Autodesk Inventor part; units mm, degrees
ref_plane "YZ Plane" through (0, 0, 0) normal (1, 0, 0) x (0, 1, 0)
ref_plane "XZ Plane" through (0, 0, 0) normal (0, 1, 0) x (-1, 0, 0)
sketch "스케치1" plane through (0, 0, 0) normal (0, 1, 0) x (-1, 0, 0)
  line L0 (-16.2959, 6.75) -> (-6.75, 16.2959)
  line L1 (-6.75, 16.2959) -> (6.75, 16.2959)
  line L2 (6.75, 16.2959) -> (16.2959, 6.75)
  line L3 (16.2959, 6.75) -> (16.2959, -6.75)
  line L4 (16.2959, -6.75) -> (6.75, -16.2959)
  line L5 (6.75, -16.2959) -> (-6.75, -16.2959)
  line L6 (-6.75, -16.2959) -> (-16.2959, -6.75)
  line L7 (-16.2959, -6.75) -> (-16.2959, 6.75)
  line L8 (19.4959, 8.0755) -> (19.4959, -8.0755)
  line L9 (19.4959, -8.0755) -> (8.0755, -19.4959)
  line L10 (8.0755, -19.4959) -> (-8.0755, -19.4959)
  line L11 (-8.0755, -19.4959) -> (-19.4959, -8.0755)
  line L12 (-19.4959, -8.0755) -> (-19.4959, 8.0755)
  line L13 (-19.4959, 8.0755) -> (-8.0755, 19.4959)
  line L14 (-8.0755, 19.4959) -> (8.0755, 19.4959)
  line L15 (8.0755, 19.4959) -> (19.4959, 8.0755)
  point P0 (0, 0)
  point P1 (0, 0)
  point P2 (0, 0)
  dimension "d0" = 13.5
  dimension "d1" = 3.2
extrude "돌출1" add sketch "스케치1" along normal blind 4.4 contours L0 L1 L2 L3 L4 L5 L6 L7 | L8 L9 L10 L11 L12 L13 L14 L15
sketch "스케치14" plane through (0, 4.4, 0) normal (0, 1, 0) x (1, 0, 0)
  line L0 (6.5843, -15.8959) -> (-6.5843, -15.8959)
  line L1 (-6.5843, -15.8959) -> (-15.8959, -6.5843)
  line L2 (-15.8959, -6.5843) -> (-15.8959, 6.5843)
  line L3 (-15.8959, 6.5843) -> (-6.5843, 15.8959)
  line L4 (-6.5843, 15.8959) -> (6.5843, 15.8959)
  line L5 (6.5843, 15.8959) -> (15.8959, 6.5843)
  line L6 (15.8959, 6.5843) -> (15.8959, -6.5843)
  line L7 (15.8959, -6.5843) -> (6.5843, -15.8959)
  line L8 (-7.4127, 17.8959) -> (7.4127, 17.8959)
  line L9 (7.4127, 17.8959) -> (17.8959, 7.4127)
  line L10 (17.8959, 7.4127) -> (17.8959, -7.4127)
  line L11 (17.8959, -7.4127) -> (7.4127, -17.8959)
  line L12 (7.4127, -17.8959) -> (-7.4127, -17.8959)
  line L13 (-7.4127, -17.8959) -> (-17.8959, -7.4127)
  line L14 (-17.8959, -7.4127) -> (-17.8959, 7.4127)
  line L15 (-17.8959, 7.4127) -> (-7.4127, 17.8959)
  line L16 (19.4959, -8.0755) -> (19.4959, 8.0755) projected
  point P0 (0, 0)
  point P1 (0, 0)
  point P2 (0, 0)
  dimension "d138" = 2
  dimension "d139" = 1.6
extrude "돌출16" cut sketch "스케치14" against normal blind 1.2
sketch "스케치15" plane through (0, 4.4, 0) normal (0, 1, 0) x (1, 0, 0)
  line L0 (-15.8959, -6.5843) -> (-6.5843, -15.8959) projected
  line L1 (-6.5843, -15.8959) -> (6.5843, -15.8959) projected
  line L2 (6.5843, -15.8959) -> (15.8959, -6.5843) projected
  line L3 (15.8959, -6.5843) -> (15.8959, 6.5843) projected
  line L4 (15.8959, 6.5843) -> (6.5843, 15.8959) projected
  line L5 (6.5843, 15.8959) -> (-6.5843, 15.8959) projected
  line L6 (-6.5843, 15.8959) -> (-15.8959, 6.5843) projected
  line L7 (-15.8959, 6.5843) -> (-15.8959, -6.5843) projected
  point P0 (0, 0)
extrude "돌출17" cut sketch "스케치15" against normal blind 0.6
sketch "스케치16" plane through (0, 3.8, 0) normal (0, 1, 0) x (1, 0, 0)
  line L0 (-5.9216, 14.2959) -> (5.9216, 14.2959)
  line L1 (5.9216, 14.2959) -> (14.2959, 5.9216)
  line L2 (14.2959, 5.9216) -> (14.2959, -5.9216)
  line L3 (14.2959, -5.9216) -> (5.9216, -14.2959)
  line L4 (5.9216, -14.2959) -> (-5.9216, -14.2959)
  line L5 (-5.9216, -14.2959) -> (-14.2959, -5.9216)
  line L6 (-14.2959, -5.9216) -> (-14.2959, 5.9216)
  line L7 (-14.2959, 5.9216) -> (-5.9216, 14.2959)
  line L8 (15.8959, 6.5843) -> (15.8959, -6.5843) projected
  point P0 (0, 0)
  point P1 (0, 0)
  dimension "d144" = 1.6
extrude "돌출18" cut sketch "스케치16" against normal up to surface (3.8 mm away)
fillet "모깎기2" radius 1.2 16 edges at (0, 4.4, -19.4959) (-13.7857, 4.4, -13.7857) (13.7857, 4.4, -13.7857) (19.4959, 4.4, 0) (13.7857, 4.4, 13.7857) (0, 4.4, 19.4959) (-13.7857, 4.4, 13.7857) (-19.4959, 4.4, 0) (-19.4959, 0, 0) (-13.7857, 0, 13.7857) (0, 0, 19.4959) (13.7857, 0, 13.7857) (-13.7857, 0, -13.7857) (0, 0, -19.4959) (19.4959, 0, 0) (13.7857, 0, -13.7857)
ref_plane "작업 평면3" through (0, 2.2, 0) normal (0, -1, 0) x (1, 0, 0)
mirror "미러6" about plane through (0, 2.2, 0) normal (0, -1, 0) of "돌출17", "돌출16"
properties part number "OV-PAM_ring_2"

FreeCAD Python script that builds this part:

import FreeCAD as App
import Part
import Sketcher

V = App.Vector
Q = App.Units.Quantity


def edges_at(feature, points):
    """Names of the edges that pass closest to the given points."""
    edges = feature.Shape.Edges
    near = lambda p: min(range(len(edges)), key=lambda i: edges[i].distToShape(Part.Vertex(*p))[0])
    return sorted({f"Edge{near(p) + 1}" for p in points})

doc = App.newDocument("Part")
body = doc.addObject("PartDesign::Body", "Body")

sketch1 = body.newObject("Sketcher::SketchObject", "Sketch")
sketch1.AttachmentSupport = (doc.getObject("XZ_Plane"), [""])
sketch1.MapMode = "FlatFace"
sketch1.addGeometry([
    Part.LineSegment(V(-19, -8, 0), V(-19, 8, 0)),
    Part.LineSegment(V(-19, 8, 0), V(-8, 19, 0)),
    Part.LineSegment(V(-8, 19, 0), V(8, 19, 0)),
    Part.LineSegment(V(8, 19, 0), V(19, 8, 0)),
    Part.LineSegment(V(19, 8, 0), V(19, -8, 0)),
    Part.LineSegment(V(19, -8, 0), V(8, -19, 0)),
    Part.LineSegment(V(8, -19, 0), V(-8, -19, 0)),
    Part.LineSegment(V(-8, -19, 0), V(-19, -8, 0)),
], False)
sketch1.addConstraint([
    Sketcher.Constraint("Coincident", 0, 2, 1, 1),
    Sketcher.Constraint("Coincident", 1, 2, 2, 1),
    Sketcher.Constraint("Coincident", 2, 2, 3, 1),
    Sketcher.Constraint("Coincident", 3, 2, 4, 1),
    Sketcher.Constraint("Coincident", 4, 2, 5, 1),
    Sketcher.Constraint("Coincident", 5, 2, 6, 1),
    Sketcher.Constraint("Coincident", 6, 2, 7, 1),
    Sketcher.Constraint("Coincident", 7, 2, 0, 1),
    Sketcher.Constraint("Vertical", 0),
    Sketcher.Constraint("Horizontal", 2),
    Sketcher.Constraint("Vertical", 4),
    Sketcher.Constraint("Horizontal", 6),
    Sketcher.Constraint("Symmetric", 0, 2, 4, 2, -1, 1),
    Sketcher.Constraint("Symmetric", 1, 2, 5, 2, -1, 1),
    Sketcher.Constraint("Perpendicular", 1, 3),
    Sketcher.Constraint("Perpendicular", 5, 7),
    Sketcher.Constraint("Horizontal", 0, 2, 3, 2),
    Sketcher.Constraint("Horizontal", 4, 2, 7, 2),
    Sketcher.Constraint("Vertical", 2, 2, 5, 2),
    Sketcher.Constraint("Equal", 6, 0),
    Sketcher.Constraint("DistanceX", 2, 1, 2, 2, Q("16.151 mm")),
    Sketcher.Constraint("Distance", 1, Q("16.151 mm")),
])
pad1 = body.newObject("PartDesign::Pad", "Pad")
pad1.Profile = sketch1
pad1.Length = 4.4
pad1.Reversed = True

sketch2 = body.newObject("Sketcher::SketchObject", "Sketch001")
sketch2.AttachmentSupport = (doc.getObject("XZ_Plane"), [""])
sketch2.MapMode = "FlatFace"
sketch2.AttachmentOffset = App.Placement(V(0, 0, -4.4), App.Rotation())
sketch2.addGeometry([
    Part.LineSegment(V(7, -18, 0), V(-7, -18, 0)),
    Part.LineSegment(V(-7, -18, 0), V(-18, -7, 0)),
    Part.LineSegment(V(-18, -7, 0), V(-18, 7, 0)),
    Part.LineSegment(V(-18, 7, 0), V(-7, 18, 0)),
    Part.LineSegment(V(-7, 18, 0), V(7, 18, 0)),
    Part.LineSegment(V(7, 18, 0), V(18, 7, 0)),
    Part.LineSegment(V(18, 7, 0), V(18, -7, 0)),
    Part.LineSegment(V(18, -7, 0), V(7, -18, 0)),
    Part.LineSegment(V(16, 7, 0), V(7, 16, 0)),
    Part.LineSegment(V(7, 16, 0), V(-7, 16, 0)),
    Part.LineSegment(V(-7, 16, 0), V(-16, 7, 0)),
    Part.LineSegment(V(-16, 7, 0), V(-16, -7, 0)),
    Part.LineSegment(V(-16, -7, 0), V(-7, -16, 0)),
    Part.LineSegment(V(-7, -16, 0), V(7, -16, 0)),
    Part.LineSegment(V(7, -16, 0), V(16, -7, 0)),
    Part.LineSegment(V(16, -7, 0), V(16, 7, 0)),
], False)
sketch2.addConstraint([
    Sketcher.Constraint("Coincident", 0, 2, 1, 1),
    Sketcher.Constraint("Coincident", 1, 2, 2, 1),
    Sketcher.Constraint("Coincident", 2, 2, 3, 1),
    Sketcher.Constraint("Coincident", 3, 2, 4, 1),
    Sketcher.Constraint("Coincident", 4, 2, 5, 1),
    Sketcher.Constraint("Coincident", 5, 2, 6, 1),
    Sketcher.Constraint("Coincident", 6, 2, 7, 1),
    Sketcher.Constraint("Coincident", 7, 2, 0, 1),
    Sketcher.Constraint("Coincident", 8, 2, 9, 1),
    Sketcher.Constraint("Coincident", 9, 2, 10, 1),
    Sketcher.Constraint("Coincident", 10, 2, 11, 1),
    Sketcher.Constraint("Coincident", 11, 2, 12, 1),
    Sketcher.Constraint("Coincident", 12, 2, 13, 1),
    Sketcher.Constraint("Coincident", 13, 2, 14, 1),
    Sketcher.Constraint("Coincident", 14, 2, 15, 1),
    Sketcher.Constraint("Coincident", 15, 2, 8, 1),
    Sketcher.Constraint("Horizontal", 0),
    Sketcher.Constraint("Vertical", 2),
    Sketcher.Constraint("Horizontal", 4),
    Sketcher.Constraint("Vertical", 6),
    Sketcher.Constraint("Horizontal", 9),
    Sketcher.Constraint("Vertical", 11),
    Sketcher.Constraint("Horizontal", 13),
    Sketcher.Constraint("Vertical", 15),
    Sketcher.Constraint("Symmetric", 0, 2, 4, 2, -1, 1),
    Sketcher.Constraint("Symmetric", 1, 2, 5, 2, -1, 1),
    Sketcher.Constraint("Symmetric", 8, 2, 12, 2, -1, 1),
    Sketcher.Constraint("Symmetric", 10, 2, 14, 2, -1, 1),
    Sketcher.Constraint("Perpendicular", 1, 3),
    Sketcher.Constraint("Perpendicular", 5, 7),
    Sketcher.Constraint("Perpendicular", 7, 8),
    Sketcher.Constraint("Perpendicular", 8, 10),
    Sketcher.Constraint("Perpendicular", 10, 12),
    Sketcher.Constraint("Perpendicular", 12, 14),
    Sketcher.Constraint("Horizontal", 2, 2, 5, 2),
    Sketcher.Constraint("Horizontal", 1, 2, 6, 2),
    Sketcher.Constraint("Horizontal", 11, 2, 14, 2),
    Sketcher.Constraint("Vertical", 0, 2, 3, 2),
    Sketcher.Constraint("Equal", 4, 2),
    Sketcher.Constraint("Equal", 13, 11),
    Sketcher.Constraint("DistanceY", 8, 2, 4, 2, Q("2 mm")),
    Sketcher.Constraint("DistanceX", 0, 2, 0, 1, Q("14.8254 mm")),
    Sketcher.Constraint("DistanceX", 9, 2, 9, 1, Q("13.1686 mm")),
    Sketcher.Constraint("DistanceY", 0, 2, -1, 1, Q("17.896 mm")),
])
pocket1 = body.newObject("PartDesign::Pocket", "Pocket")
pocket1.Profile = sketch2
pocket1.Length = 1.2
pocket1.Reversed = True

sketch3 = body.newObject("Sketcher::SketchObject", "Sketch002")
sketch3.AttachmentSupport = (doc.getObject("XZ_Plane"), [""])
sketch3.MapMode = "FlatFace"
sketch3.AttachmentOffset = App.Placement(V(0, 0, -4.4), App.Rotation())
sketch3.addGeometry([
    Part.LineSegment(V(-16, -7, 0), V(-16, 7, 0)),
    Part.LineSegment(V(-16, 7, 0), V(-7, 16, 0)),
    Part.LineSegment(V(-7, 16, 0), V(7, 16, 0)),
    Part.LineSegment(V(7, 16, 0), V(16, 7, 0)),
    Part.LineSegment(V(16, 7, 0), V(16, -7, 0)),
    Part.LineSegment(V(16, -7, 0), V(7, -16, 0)),
    Part.LineSegment(V(7, -16, 0), V(-7, -16, 0)),
    Part.LineSegment(V(-7, -16, 0), V(-16, -7, 0)),
], False)
sketch3.addConstraint([
    Sketcher.Constraint("Coincident", 0, 2, 1, 1),
    Sketcher.Constraint("Coincident", 1, 2, 2, 1),
    Sketcher.Constraint("Coincident", 2, 2, 3, 1),
    Sketcher.Constraint("Coincident", 3, 2, 4, 1),
    Sketcher.Constraint("Coincident", 4, 2, 5, 1),
    Sketcher.Constraint("Coincident", 5, 2, 6, 1),
    Sketcher.Constraint("Coincident", 6, 2, 7, 1),
    Sketcher.Constraint("Coincident", 7, 2, 0, 1),
    Sketcher.Constraint("Vertical", 0),
    Sketcher.Constraint("Horizontal", 2),
    Sketcher.Constraint("Vertical", 4),
    Sketcher.Constraint("Horizontal", 6),
    Sketcher.Constraint("Symmetric", 0, 2, 4, 2, -1, 1),
    Sketcher.Constraint("Symmetric", 1, 2, 5, 2, -1, 1),
    Sketcher.Constraint("Perpendicular", 1, 3),
    Sketcher.Constraint("Perpendicular", 5, 7),
    Sketcher.Constraint("Horizontal", 0, 2, 3, 2),
    Sketcher.Constraint("Horizontal", 4, 2, 7, 2),
    Sketcher.Constraint("Vertical", 2, 2, 5, 2),
    Sketcher.Constraint("Equal", 6, 0),
    Sketcher.Constraint("DistanceX", 2, 1, 2, 2, Q("13.1686 mm")),
    Sketcher.Constraint("DistanceX", 0, 2, -1, 1, Q("15.896 mm")),
])
pocket2 = body.newObject("PartDesign::Pocket", "Pocket001")
pocket2.Profile = sketch3
pocket2.Length = 0.6
pocket2.Reversed = True

sketch4 = body.newObject("Sketcher::SketchObject", "Sketch003")
sketch4.AttachmentSupport = (doc.getObject("XZ_Plane"), [""])
sketch4.MapMode = "FlatFace"
sketch4.AttachmentOffset = App.Placement(V(0, 0, -3.8), App.Rotation())
sketch4.addGeometry([
    Part.LineSegment(V(6, -14, 0), V(-6, -14, 0)),
    Part.LineSegment(V(-6, -14, 0), V(-14, -6, 0)),
    Part.LineSegment(V(-14, -6, 0), V(-14, 6, 0)),
    Part.LineSegment(V(-14, 6, 0), V(-6, 14, 0)),
    Part.LineSegment(V(-6, 14, 0), V(6, 14, 0)),
    Part.LineSegment(V(6, 14, 0), V(14, 6, 0)),
    Part.LineSegment(V(14, 6, 0), V(14, -6, 0)),
    Part.LineSegment(V(14, -6, 0), V(6, -14, 0)),
], False)
sketch4.addConstraint([
    Sketcher.Constraint("Coincident", 0, 2, 1, 1),
    Sketcher.Constraint("Coincident", 1, 2, 2, 1),
    Sketcher.Constraint("Coincident", 2, 2, 3, 1),
    Sketcher.Constraint("Coincident", 3, 2, 4, 1),
    Sketcher.Constraint("Coincident", 4, 2, 5, 1),
    Sketcher.Constraint("Coincident", 5, 2, 6, 1),
    Sketcher.Constraint("Coincident", 6, 2, 7, 1),
    Sketcher.Constraint("Coincident", 7, 2, 0, 1),
    Sketcher.Constraint("Horizontal", 0),
    Sketcher.Constraint("Vertical", 2),
    Sketcher.Constraint("Horizontal", 4),
    Sketcher.Constraint("Vertical", 6),
    Sketcher.Constraint("Symmetric", 0, 2, 4, 2, -1, 1),
    Sketcher.Constraint("Symmetric", 1, 2, 5, 2, -1, 1),
    Sketcher.Constraint("Perpendicular", 1, 3),
    Sketcher.Constraint("Perpendicular", 5, 7),
    Sketcher.Constraint("Horizontal", 2, 2, 5, 2),
    Sketcher.Constraint("Horizontal", 1, 2, 6, 2),
    Sketcher.Constraint("Vertical", 0, 2, 3, 2),
    Sketcher.Constraint("Equal", 4, 2),
    Sketcher.Constraint("Distance", 1, Q("11.843 mm")),
    Sketcher.Constraint("DistanceX", 0, 2, 0, 1, Q("11.8432 mm")),
])
pocket3 = body.newObject("PartDesign::Pocket", "Pocket002")
pocket3.Profile = sketch4
pocket3.Length = 3.8
pocket3.Reversed = True
doc.recompute()

fillet = body.newObject("PartDesign::Fillet", "Fillet")
fillet.Base = (pocket3, edges_at(pocket3, [
    (0, 4.4, -19.496),
    (-13.786, 4.4, -13.786),
    (13.786, 4.4, -13.786),
    (19.496, 4.4, 0),
    (13.786, 4.4, 13.786),
    (0, 4.4, 19.496),
    (-13.786, 4.4, 13.786),
    (-19.496, 4.4, 0),
    (-19.496, 0, 0),
    (-13.786, 0, 13.786),
    (0, 0, 19.496),
    (13.786, 0, 13.786),
    (-13.786, 0, -13.786),
    (0, 0, -19.496),
    (19.496, 0, 0),
    (13.786, 0, -13.786),
]))
fillet.Radius = 1.2
doc.recompute()

datumplane = body.newObject("PartDesign::Plane", "DatumPlane")
datumplane.AttachmentSupport = (doc.getObject("XZ_Plane"), [""])
datumplane.MapMode = "FlatFace"
datumplane.AttachmentOffset = App.Placement(V(0, 0, -2.2), App.Rotation())
mirrored = body.newObject("PartDesign::Mirrored", "Mirrored")
mirrored.Originals = [pocket2, pocket1]
mirrored.MirrorPlane = (datumplane, [""])
body.Tip = mirrored

doc.recompute()
